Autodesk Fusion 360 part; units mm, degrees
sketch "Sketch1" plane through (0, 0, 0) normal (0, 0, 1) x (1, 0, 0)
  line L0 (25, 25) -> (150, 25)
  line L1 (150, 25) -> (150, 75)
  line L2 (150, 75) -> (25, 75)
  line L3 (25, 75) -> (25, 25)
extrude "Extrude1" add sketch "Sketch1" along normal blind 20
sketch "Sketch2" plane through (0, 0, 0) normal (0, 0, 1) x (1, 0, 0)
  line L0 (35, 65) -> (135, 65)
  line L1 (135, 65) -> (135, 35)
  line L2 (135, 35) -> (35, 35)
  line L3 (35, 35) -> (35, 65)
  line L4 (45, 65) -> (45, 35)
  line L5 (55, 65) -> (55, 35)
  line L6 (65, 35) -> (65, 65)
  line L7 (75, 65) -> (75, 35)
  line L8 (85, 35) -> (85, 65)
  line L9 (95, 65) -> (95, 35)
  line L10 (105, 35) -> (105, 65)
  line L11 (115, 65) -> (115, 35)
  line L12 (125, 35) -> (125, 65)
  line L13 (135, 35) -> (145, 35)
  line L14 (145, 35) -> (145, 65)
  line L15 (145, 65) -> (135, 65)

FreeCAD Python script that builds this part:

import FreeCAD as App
import Part
import Sketcher

doc = App.newDocument("Part")
body = doc.addObject("PartDesign::Body", "Body")

sketch1 = doc.addObject("Sketcher::SketchObject", "Sketch")
body.addObject(sketch1)
sketch1.AttachmentSupport = (doc.XY_Plane, [""])
sketch1.MapMode = "FlatFace"
sketch1.addGeometry(Part.LineSegment(App.Vector(25, 75, 0), App.Vector(25, 25, 0)), False)
sketch1.addGeometry(Part.LineSegment(App.Vector(25, 25, 0), App.Vector(150, 25, 0)), False)
sketch1.addGeometry(Part.LineSegment(App.Vector(150, 25, 0), App.Vector(150, 75, 0)), False)
sketch1.addGeometry(Part.LineSegment(App.Vector(150, 75, 0), App.Vector(25, 75, 0)), False)
sketch1.addConstraint(Sketcher.Constraint("Coincident", 0, 2, 1, 1))
sketch1.addConstraint(Sketcher.Constraint("Coincident", 1, 2, 2, 1))
sketch1.addConstraint(Sketcher.Constraint("Coincident", 2, 2, 3, 1))
sketch1.addConstraint(Sketcher.Constraint("Coincident", 3, 2, 0, 1))
sketch1.addConstraint(Sketcher.Constraint("Vertical", 0))
sketch1.addConstraint(Sketcher.Constraint("Horizontal", 1))
sketch1.addConstraint(Sketcher.Constraint("Vertical", 2))
sketch1.addConstraint(Sketcher.Constraint("Horizontal", 3))
sketch1.addConstraint(Sketcher.Constraint("DistanceX", 1, 1, 1, 2, 125.0))
sketch1.addConstraint(Sketcher.Constraint("DistanceY", 0, 2, 0, 1, 50.0))
sketch1.addConstraint(Sketcher.Constraint("DistanceX", -1, 1, 0, 2, 25.0))
sketch1.addConstraint(Sketcher.Constraint("DistanceY", -1, 1, 0, 2, 25.0))
pad1 = doc.addObject("PartDesign::Pad", "Pad")
body.addObject(pad1)
pad1.Profile = sketch1
pad1.Length = 20

doc.recompute()
